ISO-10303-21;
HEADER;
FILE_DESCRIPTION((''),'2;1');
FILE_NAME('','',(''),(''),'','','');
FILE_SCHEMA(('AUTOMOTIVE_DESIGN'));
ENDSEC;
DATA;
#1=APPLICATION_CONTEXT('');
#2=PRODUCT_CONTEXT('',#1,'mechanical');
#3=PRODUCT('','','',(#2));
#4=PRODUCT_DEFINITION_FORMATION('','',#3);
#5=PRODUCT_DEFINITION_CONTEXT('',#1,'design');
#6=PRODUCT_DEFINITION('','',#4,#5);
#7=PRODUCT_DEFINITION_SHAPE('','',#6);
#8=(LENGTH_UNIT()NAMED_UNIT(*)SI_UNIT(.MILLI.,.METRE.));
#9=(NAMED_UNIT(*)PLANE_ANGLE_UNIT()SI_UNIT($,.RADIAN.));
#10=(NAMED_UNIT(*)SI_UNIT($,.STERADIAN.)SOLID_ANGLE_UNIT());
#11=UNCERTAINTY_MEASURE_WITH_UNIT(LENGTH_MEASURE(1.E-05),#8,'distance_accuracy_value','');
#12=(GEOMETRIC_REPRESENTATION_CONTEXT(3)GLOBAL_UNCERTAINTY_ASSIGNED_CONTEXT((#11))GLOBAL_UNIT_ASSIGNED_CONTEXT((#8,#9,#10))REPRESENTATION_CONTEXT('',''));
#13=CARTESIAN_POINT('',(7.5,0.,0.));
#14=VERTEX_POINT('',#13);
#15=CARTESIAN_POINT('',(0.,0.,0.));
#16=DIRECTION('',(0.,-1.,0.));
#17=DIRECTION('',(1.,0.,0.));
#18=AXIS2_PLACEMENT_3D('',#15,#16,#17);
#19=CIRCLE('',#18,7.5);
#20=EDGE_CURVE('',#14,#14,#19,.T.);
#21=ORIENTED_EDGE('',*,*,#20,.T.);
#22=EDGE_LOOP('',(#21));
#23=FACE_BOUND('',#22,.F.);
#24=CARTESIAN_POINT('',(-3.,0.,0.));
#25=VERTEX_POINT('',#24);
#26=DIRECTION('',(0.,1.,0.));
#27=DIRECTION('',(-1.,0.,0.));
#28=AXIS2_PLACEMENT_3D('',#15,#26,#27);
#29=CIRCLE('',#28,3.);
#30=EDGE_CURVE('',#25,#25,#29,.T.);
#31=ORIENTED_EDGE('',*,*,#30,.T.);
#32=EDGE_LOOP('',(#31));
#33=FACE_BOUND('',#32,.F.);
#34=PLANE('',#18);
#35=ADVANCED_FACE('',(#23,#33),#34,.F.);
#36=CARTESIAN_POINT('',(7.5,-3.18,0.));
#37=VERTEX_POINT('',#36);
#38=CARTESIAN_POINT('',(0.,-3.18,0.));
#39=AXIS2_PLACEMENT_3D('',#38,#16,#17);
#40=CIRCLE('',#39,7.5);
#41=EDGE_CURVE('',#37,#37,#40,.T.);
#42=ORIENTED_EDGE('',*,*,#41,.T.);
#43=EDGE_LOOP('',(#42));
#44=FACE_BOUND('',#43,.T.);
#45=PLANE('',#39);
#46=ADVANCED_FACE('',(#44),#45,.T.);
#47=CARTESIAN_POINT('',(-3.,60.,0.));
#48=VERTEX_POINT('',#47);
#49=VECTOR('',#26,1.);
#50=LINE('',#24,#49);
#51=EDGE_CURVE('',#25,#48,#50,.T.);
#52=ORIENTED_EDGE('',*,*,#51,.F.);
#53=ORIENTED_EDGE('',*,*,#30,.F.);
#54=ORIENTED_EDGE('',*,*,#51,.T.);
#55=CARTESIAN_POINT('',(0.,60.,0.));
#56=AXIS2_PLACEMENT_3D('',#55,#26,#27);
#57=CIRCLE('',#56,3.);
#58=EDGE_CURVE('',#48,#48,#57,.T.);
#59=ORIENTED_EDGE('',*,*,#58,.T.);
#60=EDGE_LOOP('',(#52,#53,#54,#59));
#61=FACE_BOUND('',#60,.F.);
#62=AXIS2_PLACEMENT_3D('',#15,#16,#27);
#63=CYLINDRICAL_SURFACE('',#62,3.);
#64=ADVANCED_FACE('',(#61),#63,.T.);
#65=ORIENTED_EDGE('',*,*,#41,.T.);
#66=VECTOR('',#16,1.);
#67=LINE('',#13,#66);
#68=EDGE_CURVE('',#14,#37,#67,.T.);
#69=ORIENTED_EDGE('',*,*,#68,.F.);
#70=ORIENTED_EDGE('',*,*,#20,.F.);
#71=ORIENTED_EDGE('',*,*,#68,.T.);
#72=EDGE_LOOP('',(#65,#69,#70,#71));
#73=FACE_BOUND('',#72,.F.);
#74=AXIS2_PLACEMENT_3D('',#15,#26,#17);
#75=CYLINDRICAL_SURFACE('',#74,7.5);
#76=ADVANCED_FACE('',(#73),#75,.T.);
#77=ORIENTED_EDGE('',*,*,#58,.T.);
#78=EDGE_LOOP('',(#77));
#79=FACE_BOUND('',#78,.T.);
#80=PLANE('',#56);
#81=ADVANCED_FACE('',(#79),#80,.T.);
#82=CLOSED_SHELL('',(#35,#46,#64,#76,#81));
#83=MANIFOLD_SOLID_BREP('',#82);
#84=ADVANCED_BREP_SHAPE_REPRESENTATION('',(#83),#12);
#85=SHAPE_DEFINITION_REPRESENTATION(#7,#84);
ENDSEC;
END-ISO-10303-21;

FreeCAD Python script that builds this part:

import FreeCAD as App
import Part
import Sketcher

V = App.Vector

doc = App.newDocument("Part")
params = doc.addObject("Spreadsheet::Sheet", "Params")
for row, (alias, value) in enumerate([
    ("sketch1_diameter", "6 mm"),
    ("pad1_length", "60 mm"),
    ("sketch2_diameter", "15 mm"),
    ("pad2_length", "3.18 mm"),
], start=1):
    params.set(f"A{row}", alias)
    params.set(f"B{row}", "=" + value)
    params.setAlias(f"B{row}", alias)

body = doc.addObject("PartDesign::Body", "Body")

# Sketch on XZ plane
sketch1 = body.newObject("Sketcher::SketchObject", "Sketch")
sketch1.AttachmentSupport = (doc.getObject("XZ_Plane"), [""])
sketch1.MapMode = "FlatFace"
sketch1.addGeometry(Part.Circle(V(0, 0, 0), V(0, 0, 1), 3), False)
sketch1.addConstraint(Sketcher.Constraint("Coincident", 0, 3, -1, 1))
sketch1.addConstraint(Sketcher.Constraint("Diameter", 0, 6.0))
sketch1.setExpression("Constraints[1]", "Params.sketch1_diameter")
pad1 = body.newObject("PartDesign::Pad", "Pad")
pad1.Profile = sketch1
pad1.setExpression("Length", "Params.pad1_length")
pad1.Reversed = True

# Sketch on XZ plane
sketch2 = body.newObject("Sketcher::SketchObject", "Sketch001")
sketch2.AttachmentSupport = (doc.getObject("XZ_Plane"), [""])
sketch2.MapMode = "FlatFace"
sketch2.addGeometry(Part.Circle(V(0, 0, 0), V(0, 0, 1), 7.5), False)
sketch2.addConstraint(Sketcher.Constraint("Coincident", 0, 3, -1, 1))
sketch2.addConstraint(Sketcher.Constraint("Diameter", 0, 15.0))
sketch2.setExpression("Constraints[1]", "Params.sketch2_diameter")
pad2 = body.newObject("PartDesign::Pad", "Pad001")
pad2.Profile = sketch2
pad2.setExpression("Length", "Params.pad2_length")

doc.recompute()
